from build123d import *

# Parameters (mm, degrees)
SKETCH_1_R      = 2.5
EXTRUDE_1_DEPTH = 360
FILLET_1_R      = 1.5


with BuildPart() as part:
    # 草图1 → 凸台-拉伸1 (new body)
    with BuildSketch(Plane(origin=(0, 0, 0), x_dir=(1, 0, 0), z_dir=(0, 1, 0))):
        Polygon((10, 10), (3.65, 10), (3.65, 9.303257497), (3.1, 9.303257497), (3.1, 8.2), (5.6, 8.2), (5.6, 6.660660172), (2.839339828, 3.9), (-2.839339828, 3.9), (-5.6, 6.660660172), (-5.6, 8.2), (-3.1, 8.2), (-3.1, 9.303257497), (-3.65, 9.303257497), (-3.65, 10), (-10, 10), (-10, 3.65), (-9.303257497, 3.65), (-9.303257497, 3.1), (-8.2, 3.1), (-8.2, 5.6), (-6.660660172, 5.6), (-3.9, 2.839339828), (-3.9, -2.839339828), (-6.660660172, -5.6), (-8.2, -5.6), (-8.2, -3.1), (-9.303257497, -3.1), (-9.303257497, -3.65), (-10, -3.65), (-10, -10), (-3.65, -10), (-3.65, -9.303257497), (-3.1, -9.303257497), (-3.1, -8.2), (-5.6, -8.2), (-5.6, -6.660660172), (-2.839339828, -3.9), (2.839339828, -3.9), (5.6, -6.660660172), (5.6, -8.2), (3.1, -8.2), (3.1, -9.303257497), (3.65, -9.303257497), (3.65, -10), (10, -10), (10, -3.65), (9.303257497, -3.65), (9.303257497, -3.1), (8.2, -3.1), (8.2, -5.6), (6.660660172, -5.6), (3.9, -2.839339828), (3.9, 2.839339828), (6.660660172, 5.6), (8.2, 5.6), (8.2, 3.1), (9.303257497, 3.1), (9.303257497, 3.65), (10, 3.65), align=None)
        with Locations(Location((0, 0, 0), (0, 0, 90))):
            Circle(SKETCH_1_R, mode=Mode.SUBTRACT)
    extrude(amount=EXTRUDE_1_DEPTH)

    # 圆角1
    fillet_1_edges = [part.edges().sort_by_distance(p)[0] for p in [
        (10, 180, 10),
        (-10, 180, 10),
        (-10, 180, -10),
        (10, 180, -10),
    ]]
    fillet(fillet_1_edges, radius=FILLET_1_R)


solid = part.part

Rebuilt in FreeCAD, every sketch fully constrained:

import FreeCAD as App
import Part
import Sketcher

V = App.Vector
Q = App.Units.Quantity


def edges_at(feature, points):
    """Names of the edges that pass closest to the given points."""
    edges = feature.Shape.Edges
    near = lambda p: min(range(len(edges)), key=lambda i: edges[i].distToShape(Part.Vertex(*p))[0])
    return sorted({f"Edge{near(p) + 1}" for p in points})

doc = App.newDocument("Part")
body = doc.addObject("PartDesign::Body", "Body")

# Sketch on XZ plane
sketch1 = body.newObject("Sketcher::SketchObject", "Sketch")
sketch1.AttachmentSupport = (doc.getObject("XZ_Plane"), [""])
sketch1.MapMode = "FlatFace"
sketch1.addGeometry([
    Part.LineSegment(V(10, -10, 0), V(3.65, -10, 0)),  # 0
    Part.LineSegment(V(3.65, -10, 0), V(3.65, -9.303257, 0)),  # 1
    Part.LineSegment(V(3.65, -9.303257, 0), V(3.1, -9.303257, 0)),  # 2
    Part.LineSegment(V(3.1, -9.303257, 0), V(3.1, -8.2, 0)),  # 3
    Part.LineSegment(V(3.1, -8.2, 0), V(5.6, -8.2, 0)),  # 4
    Part.LineSegment(V(5.6, -8.2, 0), V(5.6, -6.66066, 0)),  # 5
    Part.LineSegment(V(5.6, -6.66066, 0), V(2.83934, -3.9, 0)),  # 6
    Part.LineSegment(V(2.83934, -3.9, 0), V(-2.83934, -3.9, 0)),  # 7
    Part.LineSegment(V(-2.83934, -3.9, 0), V(-5.6, -6.66066, 0)),  # 8
    Part.LineSegment(V(-5.6, -6.66066, 0), V(-5.6, -8.2, 0)),  # 9
    Part.LineSegment(V(-5.6, -8.2, 0), V(-3.1, -8.2, 0)),  # 10
    Part.LineSegment(V(-3.1, -8.2, 0), V(-3.1, -9.303257, 0)),  # 11
    Part.LineSegment(V(-3.1, -9.303257, 0), V(-3.65, -9.303257, 0)),  # 12
    Part.LineSegment(V(-3.65, -9.303257, 0), V(-3.65, -10, 0)),  # 13
    Part.LineSegment(V(-3.65, -10, 0), V(-10, -10, 0)),  # 14
    Part.LineSegment(V(-10, -10, 0), V(-10, -3.65, 0)),  # 15
    Part.LineSegment(V(-10, -3.65, 0), V(-9.303257, -3.65, 0)),  # 16
    Part.LineSegment(V(-9.303257, -3.65, 0), V(-9.303257, -3.1, 0)),  # 17
    Part.LineSegment(V(-9.303257, -3.1, 0), V(-8.2, -3.1, 0)),  # 18
    Part.LineSegment(V(-8.2, -3.1, 0), V(-8.2, -5.6, 0)),  # 19
    Part.LineSegment(V(-8.2, -5.6, 0), V(-6.66066, -5.6, 0)),  # 20
    Part.LineSegment(V(-6.66066, -5.6, 0), V(-3.9, -2.83934, 0)),  # 21
    Part.LineSegment(V(-3.9, -2.83934, 0), V(-3.9, 2.83934, 0)),  # 22
    Part.LineSegment(V(-3.9, 2.83934, 0), V(-6.66066, 5.6, 0)),  # 23
    Part.LineSegment(V(-6.66066, 5.6, 0), V(-8.2, 5.6, 0)),  # 24
    Part.LineSegment(V(-8.2, 5.6, 0), V(-8.2, 3.1, 0)),  # 25
    Part.LineSegment(V(-8.2, 3.1, 0), V(-9.303257, 3.1, 0)),  # 26
    Part.LineSegment(V(-9.303257, 3.1, 0), V(-9.303257, 3.65, 0)),  # 27
    Part.LineSegment(V(-9.303257, 3.65, 0), V(-10, 3.65, 0)),  # 28
    Part.LineSegment(V(-10, 3.65, 0), V(-10, 10, 0)),  # 29
    Part.LineSegment(V(-10, 10, 0), V(-3.65, 10, 0)),  # 30
    Part.LineSegment(V(-3.65, 10, 0), V(-3.65, 9.303257, 0)),  # 31
    Part.LineSegment(V(-3.65, 9.303257, 0), V(-3.1, 9.303257, 0)),  # 32
    Part.LineSegment(V(-3.1, 9.303257, 0), V(-3.1, 8.2, 0)),  # 33
    Part.LineSegment(V(-3.1, 8.2, 0), V(-5.6, 8.2, 0)),  # 34
    Part.LineSegment(V(-5.6, 8.2, 0), V(-5.6, 6.66066, 0)),  # 35
    Part.LineSegment(V(-5.6, 6.66066, 0), V(-2.83934, 3.9, 0)),  # 36
    Part.LineSegment(V(-2.83934, 3.9, 0), V(2.83934, 3.9, 0)),  # 37
    Part.LineSegment(V(2.83934, 3.9, 0), V(5.6, 6.66066, 0)),  # 38
    Part.LineSegment(V(5.6, 6.66066, 0), V(5.6, 8.2, 0)),  # 39
    Part.LineSegment(V(5.6, 8.2, 0), V(3.1, 8.2, 0)),  # 40
    Part.LineSegment(V(3.1, 8.2, 0), V(3.1, 9.303257, 0)),  # 41
    Part.LineSegment(V(3.1, 9.303257, 0), V(3.65, 9.303257, 0)),  # 42
    Part.LineSegment(V(3.65, 9.303257, 0), V(3.65, 10, 0)),  # 43
    Part.LineSegment(V(3.65, 10, 0), V(10, 10, 0)),  # 44
    Part.LineSegment(V(10, 10, 0), V(10, 3.65, 0)),  # 45
    Part.LineSegment(V(10, 3.65, 0), V(9.303257, 3.65, 0)),  # 46
    Part.LineSegment(V(9.303257, 3.65, 0), V(9.303257, 3.1, 0)),  # 47
    Part.LineSegment(V(9.303257, 3.1, 0), V(8.2, 3.1, 0)),  # 48
    Part.LineSegment(V(8.2, 3.1, 0), V(8.2, 5.6, 0)),  # 49
    Part.LineSegment(V(8.2, 5.6, 0), V(6.66066, 5.6, 0)),  # 50
    Part.LineSegment(V(6.66066, 5.6, 0), V(3.9, 2.83934, 0)),  # 51
    Part.LineSegment(V(3.9, 2.83934, 0), V(3.9, -2.83934, 0)),  # 52
    Part.LineSegment(V(3.9, -2.83934, 0), V(6.66066, -5.6, 0)),  # 53
    Part.LineSegment(V(6.66066, -5.6, 0), V(8.2, -5.6, 0)),  # 54
    Part.LineSegment(V(8.2, -5.6, 0), V(8.2, -3.1, 0)),  # 55
    Part.LineSegment(V(8.2, -3.1, 0), V(9.303257, -3.1, 0)),  # 56
    Part.LineSegment(V(9.303257, -3.1, 0), V(9.303257, -3.65, 0)),  # 57
    Part.LineSegment(V(9.303257, -3.65, 0), V(10, -3.65, 0)),  # 58
    Part.LineSegment(V(10, -3.65, 0), V(10, -10, 0)),  # 59
    Part.Circle(V(0, 0, 0), V(0, 0, 1), 2.5),  # 60
], False)
sketch1.addConstraint([
    Sketcher.Constraint("Coincident", 0, 2, 1, 1),
    Sketcher.Constraint("Coincident", 1, 2, 2, 1),
    Sketcher.Constraint("Coincident", 2, 2, 3, 1),
    Sketcher.Constraint("Coincident", 3, 2, 4, 1),
    Sketcher.Constraint("Coincident", 4, 2, 5, 1),
    Sketcher.Constraint("Coincident", 5, 2, 6, 1),
    Sketcher.Constraint("Coincident", 6, 2, 7, 1),
    Sketcher.Constraint("Coincident", 7, 2, 8, 1),
    Sketcher.Constraint("Coincident", 8, 2, 9, 1),
    Sketcher.Constraint("Coincident", 9, 2, 10, 1),
    Sketcher.Constraint("Coincident", 10, 2, 11, 1),
    Sketcher.Constraint("Coincident", 11, 2, 12, 1),
    Sketcher.Constraint("Coincident", 12, 2, 13, 1),
    Sketcher.Constraint("Coincident", 13, 2, 14, 1),
    Sketcher.Constraint("Coincident", 14, 2, 15, 1),
    Sketcher.Constraint("Coincident", 15, 2, 16, 1),
    Sketcher.Constraint("Coincident", 16, 2, 17, 1),
    Sketcher.Constraint("Coincident", 17, 2, 18, 1),
    Sketcher.Constraint("Coincident", 18, 2, 19, 1),
    Sketcher.Constraint("Coincident", 19, 2, 20, 1),
    Sketcher.Constraint("Coincident", 20, 2, 21, 1),
    Sketcher.Constraint("Coincident", 21, 2, 22, 1),
    Sketcher.Constraint("Coincident", 22, 2, 23, 1),
    Sketcher.Constraint("Coincident", 23, 2, 24, 1),
    Sketcher.Constraint("Coincident", 24, 2, 25, 1),
    Sketcher.Constraint("Coincident", 25, 2, 26, 1),
    Sketcher.Constraint("Coincident", 26, 2, 27, 1),
    Sketcher.Constraint("Coincident", 27, 2, 28, 1),
    Sketcher.Constraint("Coincident", 28, 2, 29, 1),
    Sketcher.Constraint("Coincident", 29, 2, 30, 1),
    Sketcher.Constraint("Coincident", 30, 2, 31, 1),
    Sketcher.Constraint("Coincident", 31, 2, 32, 1),
    Sketcher.Constraint("Coincident", 32, 2, 33, 1),
    Sketcher.Constraint("Coincident", 33, 2, 34, 1),
    Sketcher.Constraint("Coincident", 34, 2, 35, 1),
    Sketcher.Constraint("Coincident", 35, 2, 36, 1),
    Sketcher.Constraint("Coincident", 36, 2, 37, 1),
    Sketcher.Constraint("Coincident", 37, 2, 38, 1),
    Sketcher.Constraint("Coincident", 38, 2, 39, 1),
    Sketcher.Constraint("Coincident", 39, 2, 40, 1),
    Sketcher.Constraint("Coincident", 40, 2, 41, 1),
    Sketcher.Constraint("Coincident", 41, 2, 42, 1),
    Sketcher.Constraint("Coincident", 42, 2, 43, 1),
    Sketcher.Constraint("Coincident", 43, 2, 44, 1),
    Sketcher.Constraint("Coincident", 44, 2, 45, 1),
    Sketcher.Constraint("Coincident", 45, 2, 46, 1),
    Sketcher.Constraint("Coincident", 46, 2, 47, 1),
    Sketcher.Constraint("Coincident", 47, 2, 48, 1),
    Sketcher.Constraint("Coincident", 48, 2, 49, 1),
    Sketcher.Constraint("Coincident", 49, 2, 50, 1),
    Sketcher.Constraint("Coincident", 50, 2, 51, 1),
    Sketcher.Constraint("Coincident", 51, 2, 52, 1),
    Sketcher.Constraint("Coincident", 52, 2, 53, 1),
    Sketcher.Constraint("Coincident", 53, 2, 54, 1),
    Sketcher.Constraint("Coincident", 54, 2, 55, 1),
    Sketcher.Constraint("Coincident", 55, 2, 56, 1),
    Sketcher.Constraint("Coincident", 56, 2, 57, 1),
    Sketcher.Constraint("Coincident", 57, 2, 58, 1),
    Sketcher.Constraint("Coincident", 58, 2, 59, 1),
    Sketcher.Constraint("Coincident", 59, 2, 0, 1),
    Sketcher.Constraint("Horizontal", 0),
    Sketcher.Constraint("Vertical", 1),
    Sketcher.Constraint("Horizontal", 2),
    Sketcher.Constraint("Vertical", 3),
    Sketcher.Constraint("Horizontal", 4),
    Sketcher.Constraint("Vertical", 5),
    Sketcher.Constraint("Horizontal", 7),
    Sketcher.Constraint("Vertical", 9),
    Sketcher.Constraint("Horizontal", 10),
    Sketcher.Constraint("Vertical", 11),
    Sketcher.Constraint("Horizontal", 12),
    Sketcher.Constraint("Vertical", 13),
    Sketcher.Constraint("Horizontal", 14),
    Sketcher.Constraint("Vertical", 15),
    Sketcher.Constraint("Horizontal", 16),
    Sketcher.Constraint("Vertical", 17),
    Sketcher.Constraint("Horizontal", 18),
    Sketcher.Constraint("Vertical", 19),
    Sketcher.Constraint("Horizontal", 20),
    Sketcher.Constraint("Vertical", 22),
    Sketcher.Constraint("Horizontal", 24),
    Sketcher.Constraint("Vertical", 25),
    Sketcher.Constraint("Horizontal", 26),
    Sketcher.Constraint("Vertical", 27),
    Sketcher.Constraint("Horizontal", 28),
    Sketcher.Constraint("Vertical", 29),
    Sketcher.Constraint("Horizontal", 30),
    Sketcher.Constraint("Vertical", 31),
    Sketcher.Constraint("Horizontal", 32),
    Sketcher.Constraint("Vertical", 33),
    Sketcher.Constraint("Horizontal", 34),
    Sketcher.Constraint("Vertical", 35),
    Sketcher.Constraint("Horizontal", 37),
    Sketcher.Constraint("Vertical", 39),
    Sketcher.Constraint("Horizontal", 40),
    Sketcher.Constraint("Vertical", 41),
    Sketcher.Constraint("Horizontal", 42),
    Sketcher.Constraint("Vertical", 43),
    Sketcher.Constraint("Horizontal", 44),
    Sketcher.Constraint("Vertical", 45),
    Sketcher.Constraint("Horizontal", 46),
    Sketcher.Constraint("Vertical", 47),
    Sketcher.Constraint("Horizontal", 48),
    Sketcher.Constraint("Vertical", 49),
    Sketcher.Constraint("Horizontal", 50),
    Sketcher.Constraint("Vertical", 52),
    Sketcher.Constraint("Horizontal", 54),
    Sketcher.Constraint("Vertical", 55),
    Sketcher.Constraint("Horizontal", 56),
    Sketcher.Constraint("Vertical", 57),
    Sketcher.Constraint("Horizontal", 58),
    Sketcher.Constraint("Vertical", 59),
    Sketcher.Constraint("Coincident", 60, 3, -1, 1),
    Sketcher.Constraint("Symmetric", 0, 2, 30, 2, -1, 1),
    Sketcher.Constraint("Symmetric", 2, 2, 32, 2, -1, 1),
    Sketcher.Constraint("Symmetric", 4, 2, 34, 2, -1, 1),
    Sketcher.Constraint("Symmetric", 6, 2, 36, 2, -1, 1),
    Sketcher.Constraint("Symmetric", 8, 2, 38, 2, -1, 1),
    Sketcher.Constraint("Symmetric", 10, 2, 40, 2, -1, 1),
    Sketcher.Constraint("Symmetric", 12, 2, 42, 2, -1, 1),
    Sketcher.Constraint("Symmetric", 14, 2, 44, 2, -1, 1),
    Sketcher.Constraint("Symmetric", 16, 2, 46, 2, -1, 1),
    Sketcher.Constraint("Symmetric", 18, 2, 48, 2, -1, 1),
    Sketcher.Constraint("Symmetric", 20, 2, 50, 2, -1, 1),
    Sketcher.Constraint("Symmetric", 21, 2, 51, 2, -1, 1),
    Sketcher.Constraint("Symmetric", 23, 2, 53, 2, -1, 1),
    Sketcher.Constraint("Symmetric", 25, 2, 55, 2, -1, 1),
    Sketcher.Constraint("Symmetric", 27, 2, 57, 2, -1, 1),
    Sketcher.Constraint("Symmetric", 5, 2, 8, 2, -2),
    Sketcher.Constraint("Symmetric", 3, 2, 10, 2, -2),
    Sketcher.Constraint("Symmetric", 1, 2, 12, 2, -2),
    Sketcher.Constraint("Symmetric", 29, 2, 44, 2, -2),
    Sketcher.Constraint("Symmetric", 27, 2, 46, 2, -2),
    Sketcher.Constraint("Symmetric", 25, 2, 48, 2, -2),
    Sketcher.Constraint("Symmetric", 23, 2, 50, 2, -2),
    Sketcher.Constraint("Perpendicular", 6, 8),
    Sketcher.Constraint("Parallel", 8, 21),
    Sketcher.Constraint("Perpendicular", 21, 23),
    Sketcher.Constraint("Parallel", 23, 36),
    Sketcher.Constraint("Perpendicular", 36, 38),
    Sketcher.Constraint("Perpendicular", 51, 53),
    Sketcher.Constraint("Horizontal", 22, 2, 51, 2),
    Sketcher.Constraint("Vertical", 45, 2, 58, 2),
    Sketcher.Constraint("Equal", 58, 1),
    Sketcher.Constraint("Equal", 56, 3),
    Sketcher.Constraint("Equal", 54, 5),
    Sketcher.Constraint("Equal", 44, 15),
    Sketcher.Constraint("Equal", 42, 17),
    Sketcher.Constraint("Equal", 40, 19),
    Sketcher.Constraint("Equal", 37, 22),
    Sketcher.Constraint("Equal", 8, 21),
    Sketcher.Constraint("Diameter", 60, Q("5 mm")),
    Sketcher.Constraint("DistanceX", 4, 1, 4, 2, Q("2.5 mm")),
    Sketcher.Constraint("DistanceY", 0, 2, -1, 1, Q("10 mm")),
    Sketcher.Constraint("DistanceX", 0, 2, 0, 1, Q("6.35 mm")),
    Sketcher.Constraint("DistanceX", 2, 2, 2, 1, Q("0.55 mm")),
    Sketcher.Constraint("DistanceY", 3, 2, -1, 1, Q("8.2 mm")),
    Sketcher.Constraint("DistanceY", 6, 2, -1, 1, Q("3.9 mm")),
    Sketcher.Constraint("DistanceX", 7, 2, 7, 1, Q("5.67868 mm")),
    Sketcher.Constraint("DistanceX", 16, 1, 16, 2, Q("0.696743 mm")),
])
pad1 = body.newObject("PartDesign::Pad", "Pad")
pad1.Profile = sketch1
pad1.Length = 360
pad1.Reversed = True
doc.recompute()

fillet = body.newObject("PartDesign::Fillet", "Fillet")
fillet.Base = (pad1, edges_at(pad1, [
    (10, 180, 10),
    (-10, 180, 10),
    (-10, 180, -10),
    (10, 180, -10),
]))
fillet.Radius = 1.5

doc.recompute()
